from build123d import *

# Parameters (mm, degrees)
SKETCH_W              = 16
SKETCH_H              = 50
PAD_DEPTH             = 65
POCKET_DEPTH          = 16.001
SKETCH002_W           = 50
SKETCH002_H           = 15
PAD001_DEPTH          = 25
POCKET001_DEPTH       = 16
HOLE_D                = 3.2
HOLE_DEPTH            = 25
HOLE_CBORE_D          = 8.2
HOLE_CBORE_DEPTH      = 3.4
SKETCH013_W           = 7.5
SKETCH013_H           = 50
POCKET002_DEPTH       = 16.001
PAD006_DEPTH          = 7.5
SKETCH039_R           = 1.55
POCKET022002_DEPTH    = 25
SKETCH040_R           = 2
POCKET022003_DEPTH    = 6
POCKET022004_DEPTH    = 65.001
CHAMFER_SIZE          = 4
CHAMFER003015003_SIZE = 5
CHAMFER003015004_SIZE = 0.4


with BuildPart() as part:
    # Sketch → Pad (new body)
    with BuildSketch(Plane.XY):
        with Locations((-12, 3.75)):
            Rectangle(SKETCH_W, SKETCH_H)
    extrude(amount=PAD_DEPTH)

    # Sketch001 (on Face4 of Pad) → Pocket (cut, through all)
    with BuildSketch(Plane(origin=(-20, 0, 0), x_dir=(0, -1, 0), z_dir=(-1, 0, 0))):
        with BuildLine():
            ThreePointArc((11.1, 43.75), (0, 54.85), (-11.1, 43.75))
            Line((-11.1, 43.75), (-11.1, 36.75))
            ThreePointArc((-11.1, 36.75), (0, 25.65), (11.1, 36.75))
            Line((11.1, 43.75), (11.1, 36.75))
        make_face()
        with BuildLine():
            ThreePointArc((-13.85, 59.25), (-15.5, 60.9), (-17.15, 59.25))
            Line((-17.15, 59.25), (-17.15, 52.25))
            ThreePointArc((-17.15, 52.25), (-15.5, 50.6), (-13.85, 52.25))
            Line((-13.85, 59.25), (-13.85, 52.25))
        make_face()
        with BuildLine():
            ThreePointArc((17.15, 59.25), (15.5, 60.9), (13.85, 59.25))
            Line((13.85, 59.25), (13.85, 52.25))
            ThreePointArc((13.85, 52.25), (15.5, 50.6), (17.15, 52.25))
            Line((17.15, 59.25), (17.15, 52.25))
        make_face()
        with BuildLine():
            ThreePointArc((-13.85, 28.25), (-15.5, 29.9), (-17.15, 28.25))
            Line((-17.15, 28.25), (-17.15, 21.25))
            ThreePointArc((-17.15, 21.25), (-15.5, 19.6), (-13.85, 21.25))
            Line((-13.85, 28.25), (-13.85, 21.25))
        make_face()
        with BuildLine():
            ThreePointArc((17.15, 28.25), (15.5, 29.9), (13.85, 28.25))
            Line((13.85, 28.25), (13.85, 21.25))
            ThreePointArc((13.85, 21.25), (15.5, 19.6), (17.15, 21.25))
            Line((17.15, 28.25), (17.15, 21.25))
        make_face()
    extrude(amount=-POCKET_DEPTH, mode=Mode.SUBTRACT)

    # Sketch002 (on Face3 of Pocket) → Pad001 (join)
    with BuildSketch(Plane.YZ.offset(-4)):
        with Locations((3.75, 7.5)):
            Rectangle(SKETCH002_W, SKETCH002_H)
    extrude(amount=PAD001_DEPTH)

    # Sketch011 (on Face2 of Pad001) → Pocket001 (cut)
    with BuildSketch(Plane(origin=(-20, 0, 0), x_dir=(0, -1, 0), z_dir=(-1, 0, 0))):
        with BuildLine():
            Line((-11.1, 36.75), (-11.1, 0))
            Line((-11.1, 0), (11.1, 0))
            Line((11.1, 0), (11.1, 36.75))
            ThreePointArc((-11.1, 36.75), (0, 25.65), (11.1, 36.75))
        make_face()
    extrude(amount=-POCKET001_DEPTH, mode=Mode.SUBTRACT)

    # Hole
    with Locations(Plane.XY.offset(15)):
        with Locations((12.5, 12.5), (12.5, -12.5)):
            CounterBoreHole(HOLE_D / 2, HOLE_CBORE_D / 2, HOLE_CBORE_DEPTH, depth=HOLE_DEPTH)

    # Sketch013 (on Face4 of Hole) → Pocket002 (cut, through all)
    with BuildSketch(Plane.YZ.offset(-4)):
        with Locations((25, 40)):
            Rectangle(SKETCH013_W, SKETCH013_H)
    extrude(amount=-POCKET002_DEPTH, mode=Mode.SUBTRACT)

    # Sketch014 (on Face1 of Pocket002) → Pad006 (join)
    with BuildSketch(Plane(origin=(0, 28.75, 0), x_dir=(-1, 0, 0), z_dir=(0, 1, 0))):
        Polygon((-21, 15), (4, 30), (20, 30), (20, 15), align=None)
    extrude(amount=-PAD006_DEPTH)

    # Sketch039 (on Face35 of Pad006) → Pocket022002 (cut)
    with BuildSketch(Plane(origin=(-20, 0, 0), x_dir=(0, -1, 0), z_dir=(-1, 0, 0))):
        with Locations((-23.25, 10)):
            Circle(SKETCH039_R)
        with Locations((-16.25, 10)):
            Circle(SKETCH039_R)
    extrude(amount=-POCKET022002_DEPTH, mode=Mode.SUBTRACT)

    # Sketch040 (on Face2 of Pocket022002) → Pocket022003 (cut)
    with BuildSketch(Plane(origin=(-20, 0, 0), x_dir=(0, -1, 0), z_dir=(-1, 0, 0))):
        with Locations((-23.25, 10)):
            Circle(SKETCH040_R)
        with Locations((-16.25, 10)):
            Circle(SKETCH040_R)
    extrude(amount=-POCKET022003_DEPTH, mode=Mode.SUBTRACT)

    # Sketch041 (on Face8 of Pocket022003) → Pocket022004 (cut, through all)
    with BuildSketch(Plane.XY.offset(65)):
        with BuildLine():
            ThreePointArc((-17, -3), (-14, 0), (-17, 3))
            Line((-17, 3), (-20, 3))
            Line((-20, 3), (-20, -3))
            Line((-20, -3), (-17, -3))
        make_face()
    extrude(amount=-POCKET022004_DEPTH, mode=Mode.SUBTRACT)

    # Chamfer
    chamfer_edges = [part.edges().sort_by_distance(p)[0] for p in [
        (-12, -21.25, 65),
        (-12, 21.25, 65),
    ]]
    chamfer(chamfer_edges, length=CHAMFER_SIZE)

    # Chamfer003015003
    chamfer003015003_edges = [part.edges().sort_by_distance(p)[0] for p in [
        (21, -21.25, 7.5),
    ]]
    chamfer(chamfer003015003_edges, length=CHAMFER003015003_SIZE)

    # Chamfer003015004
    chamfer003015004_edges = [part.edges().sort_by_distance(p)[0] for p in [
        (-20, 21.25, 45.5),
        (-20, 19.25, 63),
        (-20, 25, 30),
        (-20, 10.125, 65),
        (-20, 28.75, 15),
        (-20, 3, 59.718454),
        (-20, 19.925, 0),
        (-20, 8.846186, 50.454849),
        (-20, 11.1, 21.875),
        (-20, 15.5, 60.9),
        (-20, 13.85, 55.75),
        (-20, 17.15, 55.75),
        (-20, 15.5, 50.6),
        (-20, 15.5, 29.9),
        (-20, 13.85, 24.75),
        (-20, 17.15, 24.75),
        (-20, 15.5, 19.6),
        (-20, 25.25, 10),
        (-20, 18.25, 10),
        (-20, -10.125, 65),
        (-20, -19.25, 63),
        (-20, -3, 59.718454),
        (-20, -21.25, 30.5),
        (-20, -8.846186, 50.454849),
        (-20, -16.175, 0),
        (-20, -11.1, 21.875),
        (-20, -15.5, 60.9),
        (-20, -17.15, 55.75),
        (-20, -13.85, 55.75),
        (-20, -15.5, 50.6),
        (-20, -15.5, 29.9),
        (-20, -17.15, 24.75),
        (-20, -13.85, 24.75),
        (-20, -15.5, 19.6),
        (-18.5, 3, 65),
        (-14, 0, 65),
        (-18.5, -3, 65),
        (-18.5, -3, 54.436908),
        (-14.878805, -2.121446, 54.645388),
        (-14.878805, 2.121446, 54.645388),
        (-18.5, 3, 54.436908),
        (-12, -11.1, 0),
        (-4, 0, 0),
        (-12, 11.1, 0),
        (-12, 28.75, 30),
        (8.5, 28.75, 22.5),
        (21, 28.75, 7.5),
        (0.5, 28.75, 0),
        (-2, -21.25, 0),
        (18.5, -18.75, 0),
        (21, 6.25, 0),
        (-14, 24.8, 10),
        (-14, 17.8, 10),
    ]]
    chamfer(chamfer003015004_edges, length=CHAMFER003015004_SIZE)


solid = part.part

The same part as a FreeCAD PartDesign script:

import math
import FreeCAD as App
import Part
import Sketcher

V = App.Vector


def edges_at(feature, points):
    """Names of the edges that pass closest to the given points."""
    edges = feature.Shape.Edges
    near = lambda p: min(range(len(edges)), key=lambda i: edges[i].distToShape(Part.Vertex(*p))[0])
    return sorted({f"Edge{near(p) + 1}" for p in points})

doc = App.newDocument("Part")
body = doc.addObject("PartDesign::Body", "Body")

# Sketch on XY plane
sketch1 = body.newObject("Sketcher::SketchObject", "Sketch")
sketch1.AttachmentSupport = (doc.getObject("XY_Plane"), [""])
sketch1.MapMode = "FlatFace"
sketch1.addGeometry(Part.LineSegment(V(-20, 29, 0), V(-20, -21, 0)), False)
sketch1.addGeometry(Part.LineSegment(V(-20, -21, 0), V(-4, -21, 0)), False)
sketch1.addGeometry(Part.LineSegment(V(-4, -21, 0), V(-4, 29, 0)), False)
sketch1.addGeometry(Part.LineSegment(V(-4, 29, 0), V(-20, 29, 0)), False)
sketch1.addConstraint(Sketcher.Constraint("Coincident", 0, 2, 1, 1))
sketch1.addConstraint(Sketcher.Constraint("Coincident", 1, 2, 2, 1))
sketch1.addConstraint(Sketcher.Constraint("Coincident", 2, 2, 3, 1))
sketch1.addConstraint(Sketcher.Constraint("Coincident", 3, 2, 0, 1))
sketch1.addConstraint(Sketcher.Constraint("Vertical", 0))
sketch1.addConstraint(Sketcher.Constraint("Horizontal", 1))
sketch1.addConstraint(Sketcher.Constraint("Vertical", 2))
sketch1.addConstraint(Sketcher.Constraint("Horizontal", 3))
sketch1.addConstraint(Sketcher.Constraint("DistanceX", 1, 1, 1, 2, 16.0))
sketch1.addConstraint(Sketcher.Constraint("DistanceY", 0, 2, 0, 1, 50.0))
sketch1.addConstraint(Sketcher.Constraint("DistanceX", 0, 2, -1, 1, 20.0))
sketch1.addConstraint(Sketcher.Constraint("DistanceY", 0, 2, -1, 1, 21.25))
pad1 = body.newObject("PartDesign::Pad", "Pad")
pad1.Profile = sketch1
pad1.Length = 65

# Sketch on YZ plane
sketch2 = body.newObject("Sketcher::SketchObject", "Sketch001")
sketch2.AttachmentSupport = (doc.getObject("YZ_Plane"), [""])
sketch2.MapMode = "FlatFace"
sketch2.AttachmentOffset = App.Placement(V(0, 0, -20), App.Rotation())
sketch2.addGeometry(Part.ArcOfCircle(Part.Circle(V(0, 43.8, 0), V(0, 0, 1), 11.1), math.radians(0), math.radians(180)), False)
sketch2.addGeometry(Part.LineSegment(V(11.1, 43.8, 0), V(11.1, 36.8, 0)), False)
sketch2.addGeometry(Part.ArcOfCircle(Part.Circle(V(0, 36.8, 0), V(0, 0, 1), 11.1), math.radians(180), math.radians(360)), False)
sketch2.addGeometry(Part.LineSegment(V(-11.1, 36.8, 0), V(-11.1, 43.8, 0)), False)
sketch2.addGeometry(Part.ArcOfCircle(Part.Circle(V(15.5, 59.2, 0), V(0, 0, 1), 1.6), math.radians(0), math.radians(180)), False)
sketch2.addGeometry(Part.LineSegment(V(17.1, 59.2, 0), V(17.1, 52.2, 0)), False)
sketch2.addGeometry(Part.ArcOfCircle(Part.Circle(V(15.5, 52.2, 0), V(0, 0, 1), 1.6), math.radians(180), math.radians(360)), False)
sketch2.addGeometry(Part.LineSegment(V(13.8, 52.2, 0), V(13.8, 59.2, 0)), False)
sketch2.addGeometry(Part.ArcOfCircle(Part.Circle(V(-15.5, 59.2, 0), V(0, 0, 1), 1.6), math.radians(0), math.radians(180)), False)
sketch2.addGeometry(Part.LineSegment(V(-13.8, 59.2, 0), V(-13.8, 52.2, 0)), False)
sketch2.addGeometry(Part.ArcOfCircle(Part.Circle(V(-15.5, 52.2, 0), V(0, 0, 1), 1.6), math.radians(180), math.radians(360)), False)
sketch2.addGeometry(Part.LineSegment(V(-17.1, 52.2, 0), V(-17.1, 59.2, 0)), False)
sketch2.addGeometry(Part.ArcOfCircle(Part.Circle(V(15.5, 28.2, 0), V(0, 0, 1), 1.6), math.radians(0), math.radians(180)), False)
sketch2.addGeometry(Part.LineSegment(V(17.1, 28.2, 0), V(17.1, 21.2, 0)), False)
sketch2.addGeometry(Part.ArcOfCircle(Part.Circle(V(15.5, 21.2, 0), V(0, 0, 1), 1.6), math.radians(180), math.radians(360)), False)
sketch2.addGeometry(Part.LineSegment(V(13.8, 21.2, 0), V(13.8, 28.2, 0)), False)
sketch2.addGeometry(Part.ArcOfCircle(Part.Circle(V(-15.5, 28.2, 0), V(0, 0, 1), 1.6), math.radians(0), math.radians(180)), False)
sketch2.addGeometry(Part.LineSegment(V(-13.8, 28.2, 0), V(-13.8, 21.2, 0)), False)
sketch2.addGeometry(Part.ArcOfCircle(Part.Circle(V(-15.5, 21.2, 0), V(0, 0, 1), 1.6), math.radians(180), math.radians(360)), False)
sketch2.addGeometry(Part.LineSegment(V(-17.1, 21.2, 0), V(-17.1, 28.2, 0)), False)
sketch2.addConstraint(Sketcher.Constraint("Tangent", 0, 1, 1, 1))
sketch2.addConstraint(Sketcher.Constraint("Tangent", 1, 2, 2, 2))
sketch2.addConstraint(Sketcher.Constraint("Tangent", 2, 1, 3, 1))
sketch2.addConstraint(Sketcher.Constraint("Tangent", 3, 2, 0, 2))
sketch2.addConstraint(Sketcher.Constraint("Tangent", 4, 1, 5, 1))
sketch2.addConstraint(Sketcher.Constraint("Tangent", 5, 2, 6, 2))
sketch2.addConstraint(Sketcher.Constraint("Tangent", 6, 1, 7, 1))
sketch2.addConstraint(Sketcher.Constraint("Tangent", 7, 2, 4, 2))
sketch2.addConstraint(Sketcher.Constraint("Tangent", 8, 1, 9, 1))
sketch2.addConstraint(Sketcher.Constraint("Tangent", 9, 2, 10, 2))
sketch2.addConstraint(Sketcher.Constraint("Tangent", 10, 1, 11, 1))
sketch2.addConstraint(Sketcher.Constraint("Tangent", 11, 2, 8, 2))
sketch2.addConstraint(Sketcher.Constraint("Tangent", 12, 1, 13, 1))
sketch2.addConstraint(Sketcher.Constraint("Tangent", 13, 2, 14, 2))
sketch2.addConstraint(Sketcher.Constraint("Tangent", 14, 1, 15, 1))
sketch2.addConstraint(Sketcher.Constraint("Tangent", 15, 2, 12, 2))
sketch2.addConstraint(Sketcher.Constraint("Tangent", 16, 1, 17, 1))
sketch2.addConstraint(Sketcher.Constraint("Tangent", 17, 2, 18, 2))
sketch2.addConstraint(Sketcher.Constraint("Tangent", 18, 1, 19, 1))
sketch2.addConstraint(Sketcher.Constraint("Tangent", 19, 2, 16, 2))
sketch2.addConstraint(Sketcher.Constraint("Vertical", 1))
sketch2.addConstraint(Sketcher.Constraint("Vertical", 3))
sketch2.addConstraint(Sketcher.Constraint("Vertical", 5))
sketch2.addConstraint(Sketcher.Constraint("Vertical", 7))
sketch2.addConstraint(Sketcher.Constraint("Vertical", 9))
sketch2.addConstraint(Sketcher.Constraint("Vertical", 11))
sketch2.addConstraint(Sketcher.Constraint("Vertical", 13))
sketch2.addConstraint(Sketcher.Constraint("Vertical", 15))
sketch2.addConstraint(Sketcher.Constraint("Vertical", 17))
sketch2.addConstraint(Sketcher.Constraint("Vertical", 19))
sketch2.addConstraint(Sketcher.Constraint("Equal", 6, 8))
sketch2.addConstraint(Sketcher.Constraint("Equal", 10, 12))
sketch2.addConstraint(Sketcher.Constraint("Equal", 14, 16))
sketch2.addConstraint(Sketcher.Constraint("Symmetric", 4, 3, 8, 3, -2))
sketch2.addConstraint(Sketcher.Constraint("Symmetric", 12, 3, 16, 3, -2))
sketch2.addConstraint(Sketcher.Constraint("PointOnObject", 0, 3, -2))
sketch2.addConstraint(Sketcher.Constraint("Horizontal", 6, 3, 10, 3))
sketch2.addConstraint(Sketcher.Constraint("Horizontal", 14, 3, 18, 3))
sketch2.addConstraint(Sketcher.Constraint("Vertical", 6, 3, 12, 3))
sketch2.addConstraint(Sketcher.Constraint("Equal", 3, 5))
sketch2.addConstraint(Sketcher.Constraint("Equal", 11, 13))
sketch2.addConstraint(Sketcher.Constraint("Radius", 0, 11.1))
sketch2.addConstraint(Sketcher.Constraint("DistanceY", 1, 2, 1, 1, 7.0))
sketch2.addConstraint(Sketcher.Constraint("Radius", 4, 1.65))
sketch2.addConstraint(Sketcher.Constraint("DistanceX", 8, 3, 4, 3, 31.0))
sketch2.addConstraint(Sketcher.Constraint("DistanceY", 12, 3, 6, 3, 24.0))
sketch2.addConstraint(Sketcher.Constraint("DistanceY", 0, 3, 4, 3, 15.5))
sketch2.addConstraint(Sketcher.Constraint("DistanceY", -1, 1, 0, 3, 43.75))
pocket1 = body.newObject("PartDesign::Pocket", "Pocket")
pocket1.Profile = sketch2
pocket1.Type = "ThroughAll"
pocket1.Reversed = True

# Sketch on YZ plane
sketch3 = body.newObject("Sketcher::SketchObject", "Sketch002")
sketch3.AttachmentSupport = (doc.getObject("YZ_Plane"), [""])
sketch3.MapMode = "FlatFace"
sketch3.AttachmentOffset = App.Placement(V(0, 0, -4), App.Rotation())
sketch3.addGeometry(Part.LineSegment(V(-21, 15, 0), V(-21, 0, 0)), False)
sketch3.addGeometry(Part.LineSegment(V(-21, 0, 0), V(29, 0, 0)), False)
sketch3.addGeometry(Part.LineSegment(V(29, 0, 0), V(29, 15, 0)), False)
sketch3.addGeometry(Part.LineSegment(V(29, 15, 0), V(-21, 15, 0)), False)
sketch3.addConstraint(Sketcher.Constraint("Coincident", 0, 2, 1, 1))
sketch3.addConstraint(Sketcher.Constraint("Coincident", 1, 2, 2, 1))
sketch3.addConstraint(Sketcher.Constraint("Coincident", 2, 2, 3, 1))
sketch3.addConstraint(Sketcher.Constraint("Coincident", 3, 2, 0, 1))
sketch3.addConstraint(Sketcher.Constraint("Vertical", 0))
sketch3.addConstraint(Sketcher.Constraint("Horizontal", 1))
sketch3.addConstraint(Sketcher.Constraint("Vertical", 2))
sketch3.addConstraint(Sketcher.Constraint("Horizontal", 3))
sketch3.addConstraint(Sketcher.Constraint("PointOnObject", 0, 2, -1))
sketch3.addConstraint(Sketcher.Constraint("DistanceX", 1, 1, 1, 2, 50.0))
sketch3.addConstraint(Sketcher.Constraint("DistanceY", 0, 2, 0, 1, 15.0))
sketch3.addConstraint(Sketcher.Constraint("DistanceX", 0, 2, -1, 1, 21.25))
pad2 = body.newObject("PartDesign::Pad", "Pad001")
pad2.Profile = sketch3
pad2.Length = 25

# Sketch on YZ plane
sketch4 = body.newObject("Sketcher::SketchObject", "Sketch003")
sketch4.AttachmentSupport = (doc.getObject("YZ_Plane"), [""])
sketch4.MapMode = "FlatFace"
sketch4.AttachmentOffset = App.Placement(V(0, 0, -20), App.Rotation())
sketch4.addGeometry(Part.LineSegment(V(11, 37, 0), V(11, 0, 0)), False)
sketch4.addGeometry(Part.LineSegment(V(11, 0, 0), V(-11, 0, 0)), False)
sketch4.addGeometry(Part.LineSegment(V(-11, 0, 0), V(-11, 37, 0)), False)
sketch4.addGeometry(Part.ArcOfCircle(Part.Circle(V(0, 37, 0), V(0, 0, 1), 11), math.radians(180), math.radians(360)), False)
sketch4.addConstraint(Sketcher.Constraint("Coincident", 0, 2, 1, 1))
sketch4.addConstraint(Sketcher.Constraint("Coincident", 1, 2, 2, 1))
sketch4.addConstraint(Sketcher.Constraint("Tangent", 2, 2, 3, 1))
sketch4.addConstraint(Sketcher.Constraint("Tangent", 3, 2, 0, 1))
sketch4.addConstraint(Sketcher.Constraint("Vertical", 0))
sketch4.addConstraint(Sketcher.Constraint("Horizontal", 1))
sketch4.addConstraint(Sketcher.Constraint("Vertical", 2))
sketch4.addConstraint(Sketcher.Constraint("Symmetric", 0, 2, 1, 2, -1, 1))
sketch4.addConstraint(Sketcher.Constraint("Radius", 3, 11.1))
sketch4.addConstraint(Sketcher.Constraint("DistanceY", 0, 2, 0, 1, 36.75))
pocket2 = body.newObject("PartDesign::Pocket", "Pocket001")
pocket2.Profile = sketch4
pocket2.Length = 16
pocket2.Reversed = True

# Sketch on XY plane
sketch5 = body.newObject("Sketcher::SketchObject", "Sketch004")
sketch5.AttachmentSupport = (doc.getObject("XY_Plane"), [""])
sketch5.MapMode = "FlatFace"
sketch5.AttachmentOffset = App.Placement(V(0, 0, 15), App.Rotation())
sketch5.addGeometry(Part.Circle(V(12.5, 12.5, 0), V(0, 0, 1), 1.6), False)
sketch5.addGeometry(Part.Circle(V(12.5, -12.5, 0), V(0, 0, 1), 1.6), False)
sketch5.addConstraint(Sketcher.Constraint("Equal", 0, 1))
sketch5.addConstraint(Sketcher.Constraint("Symmetric", 0, 3, 1, 3, -1))
sketch5.addConstraint(Sketcher.Constraint("Diameter", 0, 3.2))
sketch5.addConstraint(Sketcher.Constraint("DistanceY", 1, 3, 0, 3, 25.0))
sketch5.addConstraint(Sketcher.Constraint("DistanceX", -1, 1, 0, 3, 12.5))
doc.recompute()
hole = body.newObject("PartDesign::Hole", "Hole")
hole.Profile = sketch5
hole.ThreadType = "None"
hole.Diameter = 3.2
hole.DepthType = "Dimension"
hole.Depth = 25
hole.DrillPoint = "Flat"
hole.HoleCutType = "Counterbore"
hole.HoleCutDiameter = 8.2
hole.HoleCutDepth = 3.4

# Sketch on YZ plane
sketch6 = body.newObject("Sketcher::SketchObject", "Sketch005")
sketch6.AttachmentSupport = (doc.getObject("YZ_Plane"), [""])
sketch6.MapMode = "FlatFace"
sketch6.AttachmentOffset = App.Placement(V(0, 0, -4), App.Rotation())
sketch6.addGeometry(Part.LineSegment(V(21, 65, 0), V(21, 15, 0)), False)
sketch6.addGeometry(Part.LineSegment(V(21, 15, 0), V(29, 15, 0)), False)
sketch6.addGeometry(Part.LineSegment(V(29, 15, 0), V(29, 65, 0)), False)
sketch6.addGeometry(Part.LineSegment(V(29, 65, 0), V(21, 65, 0)), False)
sketch6.addConstraint(Sketcher.Constraint("Coincident", 0, 2, 1, 1))
sketch6.addConstraint(Sketcher.Constraint("Coincident", 1, 2, 2, 1))
sketch6.addConstraint(Sketcher.Constraint("Coincident", 2, 2, 3, 1))
sketch6.addConstraint(Sketcher.Constraint("Coincident", 3, 2, 0, 1))
sketch6.addConstraint(Sketcher.Constraint("Vertical", 0))
sketch6.addConstraint(Sketcher.Constraint("Horizontal", 1))
sketch6.addConstraint(Sketcher.Constraint("Vertical", 2))
sketch6.addConstraint(Sketcher.Constraint("Horizontal", 3))
sketch6.addConstraint(Sketcher.Constraint("DistanceY", 0, 2, 0, 1, 50.0))
sketch6.addConstraint(Sketcher.Constraint("DistanceX", 1, 1, 1, 2, 7.5))
sketch6.addConstraint(Sketcher.Constraint("DistanceY", -1, 1, 0, 2, 15.0))
sketch6.addConstraint(Sketcher.Constraint("DistanceX", -1, 1, 0, 2, 21.25))
pocket3 = body.newObject("PartDesign::Pocket", "Pocket002")
pocket3.Profile = sketch6
pocket3.Type = "ThroughAll"

# Sketch on XZ plane
sketch7 = body.newObject("Sketcher::SketchObject", "Sketch006")
sketch7.AttachmentSupport = (doc.getObject("XZ_Plane"), [""])
sketch7.MapMode = "FlatFace"
sketch7.AttachmentOffset = App.Placement(V(0, 0, -28.75), App.Rotation())
sketch7.addGeometry(Part.LineSegment(V(-4, 30, 0), V(21, 15, 0)), False)
sketch7.addGeometry(Part.LineSegment(V(21, 15, 0), V(-20, 15, 0)), False)
sketch7.addGeometry(Part.LineSegment(V(-20, 15, 0), V(-20, 30, 0)), False)
sketch7.addGeometry(Part.LineSegment(V(-20, 30, 0), V(-4, 30, 0)), False)
sketch7.addConstraint(Sketcher.Constraint("Coincident", 0, 2, 1, 1))
sketch7.addConstraint(Sketcher.Constraint("Coincident", 1, 2, 2, 1))
sketch7.addConstraint(Sketcher.Constraint("Coincident", 2, 2, 3, 1))
sketch7.addConstraint(Sketcher.Constraint("Coincident", 3, 2, 0, 1))
sketch7.addConstraint(Sketcher.Constraint("Horizontal", 1))
sketch7.addConstraint(Sketcher.Constraint("Vertical", 2))
sketch7.addConstraint(Sketcher.Constraint("Horizontal", 3))
sketch7.addConstraint(Sketcher.Constraint("DistanceX", 1, 2, 1, 1, 41.0))
sketch7.addConstraint(Sketcher.Constraint("DistanceX", 3, 1, 3, 2, 16.0))
sketch7.addConstraint(Sketcher.Constraint("DistanceY", 2, 1, 2, 2, 15.0))
sketch7.addConstraint(Sketcher.Constraint("DistanceX", -1, 1, 0, 2, 21.0))
sketch7.addConstraint(Sketcher.Constraint("DistanceY", -1, 1, 0, 2, 15.0))
pad3 = body.newObject("PartDesign::Pad", "Pad002")
pad3.Profile = sketch7
pad3.Length = 7.5

# Sketch on YZ plane
sketch8 = body.newObject("Sketcher::SketchObject", "Sketch007")
sketch8.AttachmentSupport = (doc.getObject("YZ_Plane"), [""])
sketch8.MapMode = "FlatFace"
sketch8.AttachmentOffset = App.Placement(V(0, 0, -20), App.Rotation())
sketch8.addGeometry(Part.Circle(V(23.2, 10, 0), V(0, 0, 1), 1.6), False)
sketch8.addGeometry(Part.Circle(V(16.2, 10, 0), V(0, 0, 1), 1.6), False)
sketch8.addConstraint(Sketcher.Constraint("Equal", 0, 1))
sketch8.addConstraint(Sketcher.Constraint("Horizontal", 0, 3, 1, 3))
sketch8.addConstraint(Sketcher.Constraint("Diameter", 0, 3.1))
sketch8.addConstraint(Sketcher.Constraint("DistanceY", -1, 1, 0, 3, 10.0))
sketch8.addConstraint(Sketcher.Constraint("DistanceX", 1, 3, 0, 3, 7.0))
sketch8.addConstraint(Sketcher.Constraint("DistanceX", -1, 1, 0, 3, 23.25))
pocket4 = body.newObject("PartDesign::Pocket", "Pocket003")
pocket4.Profile = sketch8
pocket4.Length = 25
pocket4.Reversed = True

# Sketch on YZ plane
sketch9 = body.newObject("Sketcher::SketchObject", "Sketch008")
sketch9.AttachmentSupport = (doc.getObject("YZ_Plane"), [""])
sketch9.MapMode = "FlatFace"
sketch9.AttachmentOffset = App.Placement(V(0, 0, -20), App.Rotation())
sketch9.addGeometry(Part.Circle(V(23.2, 10, 0), V(0, 0, 1), 2), False)
sketch9.addGeometry(Part.Circle(V(16.2, 10, 0), V(0, 0, 1), 2), False)
sketch9.addConstraint(Sketcher.Constraint("Equal", 0, 1))
sketch9.addConstraint(Sketcher.Constraint("Horizontal", 0, 3, 1, 3))
sketch9.addConstraint(Sketcher.Constraint("Diameter", 0, 4.0))
sketch9.addConstraint(Sketcher.Constraint("DistanceY", -1, 1, 0, 3, 10.0))
sketch9.addConstraint(Sketcher.Constraint("DistanceX", 1, 3, 0, 3, 7.0))
sketch9.addConstraint(Sketcher.Constraint("DistanceX", -1, 1, 0, 3, 23.25))
pocket5 = body.newObject("PartDesign::Pocket", "Pocket004")
pocket5.Profile = sketch9
pocket5.Length = 6
pocket5.Reversed = True

# Sketch on XY plane
sketch10 = body.newObject("Sketcher::SketchObject", "Sketch009")
sketch10.AttachmentSupport = (doc.getObject("XY_Plane"), [""])
sketch10.MapMode = "FlatFace"
sketch10.AttachmentOffset = App.Placement(V(0, 0, 65), App.Rotation())
sketch10.addGeometry(Part.ArcOfCircle(Part.Circle(V(-17, 0, 0), V(0, 0, 1), 3), math.radians(-90), math.radians(90)), False)
sketch10.addGeometry(Part.LineSegment(V(-17, 3, 0), V(-20, 3, 0)), False)
sketch10.addGeometry(Part.LineSegment(V(-20, 3, 0), V(-20, -3, 0)), False)
sketch10.addGeometry(Part.LineSegment(V(-20, -3, 0), V(-17, -3, 0)), False)
sketch10.addConstraint(Sketcher.Constraint("Tangent", 0, 2, 1, 1))
sketch10.addConstraint(Sketcher.Constraint("Coincident", 1, 2, 2, 1))
sketch10.addConstraint(Sketcher.Constraint("Coincident", 2, 2, 3, 1))
sketch10.addConstraint(Sketcher.Constraint("Tangent", 3, 2, 0, 1))
sketch10.addConstraint(Sketcher.Constraint("Horizontal", 1))
sketch10.addConstraint(Sketcher.Constraint("Vertical", 2))
sketch10.addConstraint(Sketcher.Constraint("Horizontal", 3))
sketch10.addConstraint(Sketcher.Constraint("PointOnObject", 0, 3, -1))
sketch10.addConstraint(Sketcher.Constraint("Radius", 0, 3.0))
sketch10.addConstraint(Sketcher.Constraint("DistanceX", 1, 2, 1, 1, 3.0))
sketch10.addConstraint(Sketcher.Constraint("DistanceX", 0, 3, -1, 1, 17.0))
pocket6 = body.newObject("PartDesign::Pocket", "Pocket005")
pocket6.Profile = sketch10
pocket6.Type = "ThroughAll"
doc.recompute()

chamfer = body.newObject("PartDesign::Chamfer", "Chamfer")
chamfer.Base = (pocket6, edges_at(pocket6, [(-12, -21.25, 65), (-12, 21.25, 65)]))
chamfer.Size = 4
doc.recompute()

chamfer2 = body.newObject("PartDesign::Chamfer", "Chamfer001")
chamfer2.Base = (chamfer, edges_at(chamfer, [(21, -21.25, 7.5)]))
chamfer2.Size = 5
doc.recompute()

chamfer3 = body.newObject("PartDesign::Chamfer", "Chamfer002")
chamfer3.Base = (chamfer2, edges_at(chamfer2, [
    (-20, 21.25, 45.5),
    (-20, 19.25, 63),
    (-20, 25, 30),
    (-20, 10.125, 65),
    (-20, 28.75, 15),
    (-20, 3, 59.718),
    (-20, 19.925, 0),
    (-20, 8.846, 50.455),
    (-20, 11.1, 21.875),
    (-20, 15.5, 60.9),
    (-20, 13.85, 55.75),
    (-20, 17.15, 55.75),
    (-20, 15.5, 50.6),
    (-20, 15.5, 29.9),
    (-20, 13.85, 24.75),
    (-20, 17.15, 24.75),
    (-20, 15.5, 19.6),
    (-20, 25.25, 10),
    (-20, 18.25, 10),
    (-20, -10.125, 65),
    (-20, -19.25, 63),
    (-20, -3, 59.718),
    (-20, -21.25, 30.5),
    (-20, -8.846, 50.455),
    (-20, -16.175, 0),
    (-20, -11.1, 21.875),
    (-20, -15.5, 60.9),
    (-20, -17.15, 55.75),
    (-20, -13.85, 55.75),
    (-20, -15.5, 50.6),
    (-20, -15.5, 29.9),
    (-20, -17.15, 24.75),
    (-20, -13.85, 24.75),
    (-20, -15.5, 19.6),
    (-18.5, 3, 65),
    (-14, 0, 65),
    (-18.5, -3, 65),
    (-18.5, -3, 54.437),
    (-14, 0, 54.85),
    (-14, 0, 54.85),
    (-18.5, 3, 54.437),
    (-12, -11.1, 0),
    (-4, 0, 0),
    (-12, 11.1, 0),
    (-12, 28.75, 30),
    (8.5, 28.75, 22.5),
    (21, 28.75, 7.5),
    (0.5, 28.75, 0),
    (-2, -21.25, 0),
    (18.5, -18.75, 0),
    (21, 6.25, 0),
    (-14, 24.8, 10),
    (-14, 17.8, 10),
]))
chamfer3.Size = 0.4

doc.recompute()
